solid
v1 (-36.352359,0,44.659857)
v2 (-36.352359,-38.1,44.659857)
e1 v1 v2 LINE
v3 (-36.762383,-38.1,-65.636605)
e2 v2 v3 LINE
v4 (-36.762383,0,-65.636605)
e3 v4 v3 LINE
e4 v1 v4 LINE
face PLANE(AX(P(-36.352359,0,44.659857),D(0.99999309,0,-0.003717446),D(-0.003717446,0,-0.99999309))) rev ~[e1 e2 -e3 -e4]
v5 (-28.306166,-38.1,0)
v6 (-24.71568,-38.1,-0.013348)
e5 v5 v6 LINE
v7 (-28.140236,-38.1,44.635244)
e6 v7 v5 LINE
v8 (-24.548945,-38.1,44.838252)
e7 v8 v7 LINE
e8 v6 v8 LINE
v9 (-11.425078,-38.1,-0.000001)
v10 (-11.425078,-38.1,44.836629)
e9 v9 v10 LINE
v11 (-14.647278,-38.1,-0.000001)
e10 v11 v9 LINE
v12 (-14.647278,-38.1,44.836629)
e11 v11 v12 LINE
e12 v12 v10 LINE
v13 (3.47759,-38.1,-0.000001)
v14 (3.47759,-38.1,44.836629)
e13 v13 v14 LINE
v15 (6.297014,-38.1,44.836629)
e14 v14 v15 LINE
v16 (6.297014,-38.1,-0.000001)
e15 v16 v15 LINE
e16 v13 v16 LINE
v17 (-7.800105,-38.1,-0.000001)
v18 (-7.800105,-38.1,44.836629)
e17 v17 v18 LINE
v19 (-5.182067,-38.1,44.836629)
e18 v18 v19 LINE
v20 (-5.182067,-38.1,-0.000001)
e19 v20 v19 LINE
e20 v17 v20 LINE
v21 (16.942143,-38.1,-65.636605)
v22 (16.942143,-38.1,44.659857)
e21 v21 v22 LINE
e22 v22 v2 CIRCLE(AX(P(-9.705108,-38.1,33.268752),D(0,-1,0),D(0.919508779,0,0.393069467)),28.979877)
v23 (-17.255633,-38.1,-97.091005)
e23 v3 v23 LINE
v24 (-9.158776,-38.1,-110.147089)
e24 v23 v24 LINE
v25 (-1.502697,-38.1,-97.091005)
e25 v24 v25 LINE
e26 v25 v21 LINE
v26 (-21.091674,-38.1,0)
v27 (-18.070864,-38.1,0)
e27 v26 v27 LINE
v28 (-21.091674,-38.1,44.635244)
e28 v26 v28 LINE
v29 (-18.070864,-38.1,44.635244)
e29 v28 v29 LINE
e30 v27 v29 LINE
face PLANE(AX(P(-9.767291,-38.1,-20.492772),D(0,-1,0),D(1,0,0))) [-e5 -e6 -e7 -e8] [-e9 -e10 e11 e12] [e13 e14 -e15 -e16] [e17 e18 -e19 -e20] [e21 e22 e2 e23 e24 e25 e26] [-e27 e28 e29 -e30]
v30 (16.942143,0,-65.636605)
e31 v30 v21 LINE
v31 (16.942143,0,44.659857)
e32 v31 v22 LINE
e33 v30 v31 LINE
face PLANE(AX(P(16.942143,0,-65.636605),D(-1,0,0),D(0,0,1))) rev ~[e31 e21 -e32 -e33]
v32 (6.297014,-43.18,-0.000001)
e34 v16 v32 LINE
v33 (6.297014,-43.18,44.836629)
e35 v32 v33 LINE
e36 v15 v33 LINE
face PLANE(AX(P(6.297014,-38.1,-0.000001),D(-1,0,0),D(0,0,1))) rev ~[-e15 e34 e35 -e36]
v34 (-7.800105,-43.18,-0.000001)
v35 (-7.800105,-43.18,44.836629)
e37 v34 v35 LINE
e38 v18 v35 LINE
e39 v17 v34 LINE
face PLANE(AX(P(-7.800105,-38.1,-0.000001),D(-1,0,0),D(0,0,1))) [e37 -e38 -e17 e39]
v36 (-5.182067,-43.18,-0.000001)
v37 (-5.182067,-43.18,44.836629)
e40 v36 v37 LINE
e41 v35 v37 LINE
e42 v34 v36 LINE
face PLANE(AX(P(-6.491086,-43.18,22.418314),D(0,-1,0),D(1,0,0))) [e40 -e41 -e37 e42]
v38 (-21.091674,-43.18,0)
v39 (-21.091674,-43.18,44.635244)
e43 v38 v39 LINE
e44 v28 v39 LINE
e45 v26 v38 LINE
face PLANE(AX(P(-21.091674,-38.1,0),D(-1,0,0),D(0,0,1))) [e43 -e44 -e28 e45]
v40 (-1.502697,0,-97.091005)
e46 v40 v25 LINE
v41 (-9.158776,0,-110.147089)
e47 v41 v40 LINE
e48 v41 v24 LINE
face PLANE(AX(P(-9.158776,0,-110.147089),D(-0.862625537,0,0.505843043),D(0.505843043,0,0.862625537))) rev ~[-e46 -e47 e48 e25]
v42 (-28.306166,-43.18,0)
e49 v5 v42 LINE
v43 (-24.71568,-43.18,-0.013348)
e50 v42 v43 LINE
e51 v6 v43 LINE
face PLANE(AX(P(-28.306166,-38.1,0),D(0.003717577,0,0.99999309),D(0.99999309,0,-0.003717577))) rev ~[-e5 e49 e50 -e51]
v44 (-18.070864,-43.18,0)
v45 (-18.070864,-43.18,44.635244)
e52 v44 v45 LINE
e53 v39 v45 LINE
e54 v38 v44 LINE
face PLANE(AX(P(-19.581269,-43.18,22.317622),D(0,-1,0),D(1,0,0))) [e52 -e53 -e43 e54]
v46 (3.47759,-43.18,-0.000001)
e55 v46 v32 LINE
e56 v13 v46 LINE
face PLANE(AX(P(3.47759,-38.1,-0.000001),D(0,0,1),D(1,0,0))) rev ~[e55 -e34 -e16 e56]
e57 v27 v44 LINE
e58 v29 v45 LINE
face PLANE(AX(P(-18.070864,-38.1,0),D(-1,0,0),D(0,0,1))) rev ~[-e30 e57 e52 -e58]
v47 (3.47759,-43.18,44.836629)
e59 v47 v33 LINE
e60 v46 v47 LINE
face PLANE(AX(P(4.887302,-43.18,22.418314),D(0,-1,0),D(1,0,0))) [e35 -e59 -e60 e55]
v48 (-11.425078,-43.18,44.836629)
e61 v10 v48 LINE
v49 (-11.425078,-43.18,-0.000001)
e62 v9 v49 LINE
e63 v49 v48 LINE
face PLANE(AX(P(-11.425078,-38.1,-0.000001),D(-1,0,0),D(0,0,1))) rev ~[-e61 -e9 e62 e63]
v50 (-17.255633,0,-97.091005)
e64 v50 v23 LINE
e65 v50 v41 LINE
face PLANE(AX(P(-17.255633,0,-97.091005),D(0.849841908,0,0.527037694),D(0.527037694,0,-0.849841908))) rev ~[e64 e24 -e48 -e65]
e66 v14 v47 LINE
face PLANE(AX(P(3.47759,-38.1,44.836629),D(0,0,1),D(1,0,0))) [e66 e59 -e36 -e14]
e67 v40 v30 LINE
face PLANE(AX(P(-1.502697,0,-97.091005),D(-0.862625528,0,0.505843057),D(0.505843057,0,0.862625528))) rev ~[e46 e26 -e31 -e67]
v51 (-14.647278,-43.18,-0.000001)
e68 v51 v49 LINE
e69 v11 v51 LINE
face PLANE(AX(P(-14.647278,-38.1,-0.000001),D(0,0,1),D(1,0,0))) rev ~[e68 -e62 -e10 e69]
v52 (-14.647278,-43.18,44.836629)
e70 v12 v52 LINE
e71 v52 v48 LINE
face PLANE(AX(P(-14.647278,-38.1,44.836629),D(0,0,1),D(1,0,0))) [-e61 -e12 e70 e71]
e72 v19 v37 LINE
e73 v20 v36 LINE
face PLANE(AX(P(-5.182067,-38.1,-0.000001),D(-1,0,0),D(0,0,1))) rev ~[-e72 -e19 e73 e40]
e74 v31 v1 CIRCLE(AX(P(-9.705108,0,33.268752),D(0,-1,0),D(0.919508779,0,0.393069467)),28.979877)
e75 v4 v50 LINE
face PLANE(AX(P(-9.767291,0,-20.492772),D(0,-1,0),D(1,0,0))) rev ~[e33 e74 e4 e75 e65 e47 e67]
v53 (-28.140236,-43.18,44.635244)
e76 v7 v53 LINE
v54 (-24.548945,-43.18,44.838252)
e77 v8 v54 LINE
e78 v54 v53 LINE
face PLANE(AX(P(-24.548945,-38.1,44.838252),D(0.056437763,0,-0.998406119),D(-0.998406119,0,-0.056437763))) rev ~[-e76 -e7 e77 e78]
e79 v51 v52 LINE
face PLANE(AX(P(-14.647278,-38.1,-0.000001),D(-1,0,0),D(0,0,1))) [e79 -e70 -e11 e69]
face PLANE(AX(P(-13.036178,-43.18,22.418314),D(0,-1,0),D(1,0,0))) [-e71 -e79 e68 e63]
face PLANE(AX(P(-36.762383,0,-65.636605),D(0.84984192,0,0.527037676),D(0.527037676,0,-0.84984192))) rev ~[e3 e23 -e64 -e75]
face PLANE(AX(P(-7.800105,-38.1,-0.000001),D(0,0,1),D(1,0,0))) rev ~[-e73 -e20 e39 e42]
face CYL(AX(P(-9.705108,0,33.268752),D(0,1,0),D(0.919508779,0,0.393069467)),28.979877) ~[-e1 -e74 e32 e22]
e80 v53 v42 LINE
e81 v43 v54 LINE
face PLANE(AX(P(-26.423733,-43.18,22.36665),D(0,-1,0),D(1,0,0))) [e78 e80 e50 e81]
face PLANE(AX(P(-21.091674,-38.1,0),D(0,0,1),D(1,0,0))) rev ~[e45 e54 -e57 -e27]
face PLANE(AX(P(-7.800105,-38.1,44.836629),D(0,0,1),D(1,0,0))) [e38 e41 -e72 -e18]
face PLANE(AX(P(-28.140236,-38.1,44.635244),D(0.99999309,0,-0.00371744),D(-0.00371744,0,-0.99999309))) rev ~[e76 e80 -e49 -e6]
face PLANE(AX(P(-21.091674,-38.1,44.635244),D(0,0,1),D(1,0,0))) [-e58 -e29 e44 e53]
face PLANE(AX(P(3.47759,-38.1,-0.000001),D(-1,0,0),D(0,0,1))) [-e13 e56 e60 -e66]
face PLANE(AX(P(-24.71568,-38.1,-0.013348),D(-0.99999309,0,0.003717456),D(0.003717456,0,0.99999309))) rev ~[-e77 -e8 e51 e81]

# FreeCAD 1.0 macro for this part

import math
import FreeCAD as App
import Part
import Sketcher
from FreeCAD import Vector
Q = App.Units.Quantity

doc = App.newDocument("Part")
body = doc.addObject("PartDesign::Body", "Body")

sketch1 = doc.addObject("Sketcher::SketchObject", "Sketch")
body.addObject(sketch1)
sketch1.AttachmentSupport = (doc.XZ_Plane, [""])
sketch1.MapMode = "FlatFace"
sketch1.addGeometry(Part.LineSegment(Vector(-36.352359, 44.659857, 0), Vector(-36.762383, -65.636605, 0)), False)
sketch1.addGeometry(Part.LineSegment(Vector(-36.762383, -65.636605, 0), Vector(-17.255633, -97.091005, 0)), False)
sketch1.addGeometry(Part.LineSegment(Vector(-17.255633, -97.091005, 0), Vector(-9.158776, -110.147089, 0)), False)
sketch1.addGeometry(Part.LineSegment(Vector(-9.158776, -110.147089, 0), Vector(-1.502697, -97.091005, 0)), False)
sketch1.addGeometry(Part.LineSegment(Vector(-1.502697, -97.091005, 0), Vector(16.942143, -65.636605, 0)), False)
sketch1.addGeometry(Part.LineSegment(Vector(16.942143, -65.636605, 0), Vector(16.942143, 44.659857, 0)), False)
sketch1.addGeometry(Part.ArcOfCircle(Part.Circle(Vector(-9.705108, 33.268752, 0), Vector(0, 0, 1), 28.979877), math.radians(23.145626), math.radians(156.854374)), False)
sketch1.addConstraint(Sketcher.Constraint("Coincident", 0, 2, 1, 1))
sketch1.addConstraint(Sketcher.Constraint("Coincident", 1, 2, 2, 1))
sketch1.addConstraint(Sketcher.Constraint("Coincident", 2, 2, 3, 1))
sketch1.addConstraint(Sketcher.Constraint("Coincident", 3, 2, 4, 1))
sketch1.addConstraint(Sketcher.Constraint("Coincident", 4, 2, 5, 1))
sketch1.addConstraint(Sketcher.Constraint("Coincident", 5, 2, 6, 1))
sketch1.addConstraint(Sketcher.Constraint("Coincident", 6, 2, 0, 1))
sketch1.addConstraint(Sketcher.Constraint("Vertical", 5))
sketch1.addConstraint(Sketcher.Constraint("Parallel", 1, 2))
sketch1.addConstraint(Sketcher.Constraint("Parallel", 3, 4))
sketch1.addConstraint(Sketcher.Constraint("Horizontal", 1, 2, 3, 2))
sketch1.addConstraint(Sketcher.Constraint("Horizontal", 0, 2, 4, 2))
sketch1.addConstraint(Sketcher.Constraint("Horizontal", 5, 2, 6, 2))
sketch1.addConstraint(Sketcher.Constraint("Radius", 6, 28.979877))
sketch1.addConstraint(Sketcher.Constraint("DistanceY", 1, 2, 0, 2, 31.4544))
sketch1.addConstraint(Sketcher.Constraint("DistanceX", 6, 2, 5, 2, 53.294502))
sketch1.addConstraint(Sketcher.Constraint("Distance", 1, 37.01206))
sketch1.addConstraint(Sketcher.Constraint("DistanceY", 5, 1, 5, 2, 110.296462))
sketch1.addConstraint(Sketcher.Constraint("DistanceY", 2, 2, -1, 1, 110.147089))
sketch1.addConstraint(Sketcher.Constraint("DistanceX", 6, 2, -1, 1, 36.352359))
sketch1.addConstraint(Sketcher.Constraint("DistanceX", 6, 3, 2, 2, 0.546332))
sketch1.addConstraint(Sketcher.Constraint("DistanceY", 2, 2, 6, 3, 143.415841))
pad1 = doc.addObject("PartDesign::Pad", "Pad")
body.addObject(pad1)
pad1.Profile = sketch1
pad1.Length = Q("1.5 in")

sketch2 = doc.addObject("Sketcher::SketchObject", "Sketch001")
body.addObject(sketch2)
sketch2.AttachmentSupport = (doc.XZ_Plane, [""])
sketch2.MapMode = "FlatFace"
sketch2.AttachmentOffset = App.Placement(Vector(0, 0, 1.5 * 25.4), App.Rotation())
sketch2.addGeometry(Part.LineSegment(Vector(-24.548945, 44.838252, 0), Vector(-28.140236, 44.635244, 0)), False)
sketch2.addGeometry(Part.LineSegment(Vector(-28.140236, 44.635244, 0), Vector(-28.306166, 0, 0)), False)
sketch2.addGeometry(Part.LineSegment(Vector(-28.306166, 0, 0), Vector(-24.71568, -0.013348, 0)), False)
sketch2.addGeometry(Part.LineSegment(Vector(-24.71568, -0.013348, 0), Vector(-24.548945, 44.838252, 0)), False)
sketch2.addGeometry(Part.LineSegment(Vector(-21.091674, 44.635244, 0), Vector(-21.091674, 0, 0)), False)
sketch2.addGeometry(Part.LineSegment(Vector(-21.091674, 0, 0), Vector(-18.070864, 0, 0)), False)
sketch2.addGeometry(Part.LineSegment(Vector(-18.070864, 0, 0), Vector(-18.070864, 44.635244, 0)), False)
sketch2.addGeometry(Part.LineSegment(Vector(-18.070864, 44.635244, 0), Vector(-21.091674, 44.635244, 0)), False)
sketch2.addGeometry(Part.LineSegment(Vector(-14.647278, 44.836629, 0), Vector(-14.647278, 0, 0)), False)
sketch2.addGeometry(Part.LineSegment(Vector(-14.647278, 0, 0), Vector(-11.425078, 0, 0)), False)
sketch2.addGeometry(Part.LineSegment(Vector(-11.425078, 0, 0), Vector(-11.425078, 44.836629, 0)), False)
sketch2.addGeometry(Part.LineSegment(Vector(-11.425078, 44.836629, 0), Vector(-14.647278, 44.836629, 0)), False)
sketch2.addGeometry(Part.LineSegment(Vector(-7.800105, 44.836629, 0), Vector(-7.800105, 0, 0)), False)
sketch2.addGeometry(Part.LineSegment(Vector(-7.800105, 0, 0), Vector(-5.182067, 0, 0)), False)
sketch2.addGeometry(Part.LineSegment(Vector(-5.182067, 0, 0), Vector(-5.182067, 44.836629, 0)), False)
sketch2.addGeometry(Part.LineSegment(Vector(-5.182067, 44.836629, 0), Vector(-7.800105, 44.836629, 0)), False)
sketch2.addGeometry(Part.LineSegment(Vector(3.47759, 44.836629, 0), Vector(3.47759, 0, 0)), False)
sketch2.addGeometry(Part.LineSegment(Vector(3.47759, 0, 0), Vector(6.297014, 0, 0)), False)
sketch2.addGeometry(Part.LineSegment(Vector(6.297014, 0, 0), Vector(6.297014, 44.836629, 0)), False)
sketch2.addGeometry(Part.LineSegment(Vector(6.297014, 44.836629, 0), Vector(3.47759, 44.836629, 0)), False)
sketch2.addConstraint(Sketcher.Constraint("Coincident", 0, 2, 1, 1))
sketch2.addConstraint(Sketcher.Constraint("Coincident", 1, 2, 2, 1))
sketch2.addConstraint(Sketcher.Constraint("Coincident", 2, 2, 3, 1))
sketch2.addConstraint(Sketcher.Constraint("Coincident", 3, 2, 0, 1))
sketch2.addConstraint(Sketcher.Constraint("Coincident", 4, 2, 5, 1))
sketch2.addConstraint(Sketcher.Constraint("Coincident", 5, 2, 6, 1))
sketch2.addConstraint(Sketcher.Constraint("Coincident", 6, 2, 7, 1))
sketch2.addConstraint(Sketcher.Constraint("Coincident", 7, 2, 4, 1))
sketch2.addConstraint(Sketcher.Constraint("Coincident", 8, 2, 9, 1))
sketch2.addConstraint(Sketcher.Constraint("Coincident", 9, 2, 10, 1))
sketch2.addConstraint(Sketcher.Constraint("Coincident", 10, 2, 11, 1))
sketch2.addConstraint(Sketcher.Constraint("Coincident", 11, 2, 8, 1))
sketch2.addConstraint(Sketcher.Constraint("Coincident", 12, 2, 13, 1))
sketch2.addConstraint(Sketcher.Constraint("Coincident", 13, 2, 14, 1))
sketch2.addConstraint(Sketcher.Constraint("Coincident", 14, 2, 15, 1))
sketch2.addConstraint(Sketcher.Constraint("Coincident", 15, 2, 12, 1))
sketch2.addConstraint(Sketcher.Constraint("Coincident", 16, 2, 17, 1))
sketch2.addConstraint(Sketcher.Constraint("Coincident", 17, 2, 18, 1))
sketch2.addConstraint(Sketcher.Constraint("Coincident", 18, 2, 19, 1))
sketch2.addConstraint(Sketcher.Constraint("Coincident", 19, 2, 16, 1))
sketch2.addConstraint(Sketcher.Constraint("Vertical", 4))
sketch2.addConstraint(Sketcher.Constraint("Horizontal", 5))
sketch2.addConstraint(Sketcher.Constraint("Vertical", 6))
sketch2.addConstraint(Sketcher.Constraint("Horizontal", 7))
sketch2.addConstraint(Sketcher.Constraint("Vertical", 8))
sketch2.addConstraint(Sketcher.Constraint("Horizontal", 9))
sketch2.addConstraint(Sketcher.Constraint("Vertical", 10))
sketch2.addConstraint(Sketcher.Constraint("Horizontal", 11))
sketch2.addConstraint(Sketcher.Constraint("Vertical", 12))
sketch2.addConstraint(Sketcher.Constraint("Horizontal", 13))
sketch2.addConstraint(Sketcher.Constraint("Vertical", 14))
sketch2.addConstraint(Sketcher.Constraint("Horizontal", 15))
sketch2.addConstraint(Sketcher.Constraint("Vertical", 16))
sketch2.addConstraint(Sketcher.Constraint("Horizontal", 17))
sketch2.addConstraint(Sketcher.Constraint("Vertical", 18))
sketch2.addConstraint(Sketcher.Constraint("Horizontal", 19))
sketch2.addConstraint(Sketcher.Constraint("PointOnObject", 1, 2, -1))
sketch2.addConstraint(Sketcher.Constraint("PointOnObject", 4, 2, -1))
sketch2.addConstraint(Sketcher.Constraint("PointOnObject", 8, 2, -1))
sketch2.addConstraint(Sketcher.Constraint("PointOnObject", 12, 2, -1))
sketch2.addConstraint(Sketcher.Constraint("PointOnObject", 16, 2, -1))
sketch2.addConstraint(Sketcher.Constraint("Perpendicular", 1, 2))
sketch2.addConstraint(Sketcher.Constraint("Perpendicular", 2, 3))
sketch2.addConstraint(Sketcher.Constraint("Horizontal", 0, 2, 6, 2))
sketch2.addConstraint(Sketcher.Constraint("Horizontal", 11, 2, 14, 2))
sketch2.addConstraint(Sketcher.Constraint("Horizontal", 15, 2, 18, 2))
sketch2.addConstraint(Sketcher.Constraint("DistanceX", 9, 1, 9, 2, 3.2222))
sketch2.addConstraint(Sketcher.Constraint("DistanceX", 5, 1, 5, 2, 3.020811))
sketch2.addConstraint(Sketcher.Constraint("DistanceX", 13, 1, 13, 2, 2.618038))
sketch2.addConstraint(Sketcher.Constraint("DistanceY", 8, 2, 8, 1, 44.836629))
sketch2.addConstraint(Sketcher.Constraint("DistanceY", 2, 2, 3, 2, 44.8516))
sketch2.addConstraint(Sketcher.Constraint("DistanceX", 2, 2, 8, 2, 10.068402))
sketch2.addConstraint(Sketcher.Constraint("Distance", 2, 3.590511))
sketch2.addConstraint(Sketcher.Constraint("DistanceX", 17, 1, 17, 2, 2.819423))
sketch2.addConstraint(Sketcher.Constraint("DistanceY", 4, 2, 4, 1, 44.635244))
sketch2.addConstraint(Sketcher.Constraint("DistanceX", 2, 2, -1, 1, 24.71568))
sketch2.addConstraint(Sketcher.Constraint("DistanceY", -1, 1, 3, 2, 44.838252))
sketch2.addConstraint(Sketcher.Constraint("DistanceX", -1, 1, 16, 2, 3.47759))
sketch2.addConstraint(Sketcher.Constraint("DistanceX", 1, 2, 4, 2, 7.214492))
sketch2.addConstraint(Sketcher.Constraint("DistanceX", 5, 2, 12, 2, 10.270759))
pad2 = doc.addObject("PartDesign::Pad", "Pad001")
body.addObject(pad2)
pad2.Profile = sketch2
pad2.Length = Q("0.2 in")

doc.recompute()
